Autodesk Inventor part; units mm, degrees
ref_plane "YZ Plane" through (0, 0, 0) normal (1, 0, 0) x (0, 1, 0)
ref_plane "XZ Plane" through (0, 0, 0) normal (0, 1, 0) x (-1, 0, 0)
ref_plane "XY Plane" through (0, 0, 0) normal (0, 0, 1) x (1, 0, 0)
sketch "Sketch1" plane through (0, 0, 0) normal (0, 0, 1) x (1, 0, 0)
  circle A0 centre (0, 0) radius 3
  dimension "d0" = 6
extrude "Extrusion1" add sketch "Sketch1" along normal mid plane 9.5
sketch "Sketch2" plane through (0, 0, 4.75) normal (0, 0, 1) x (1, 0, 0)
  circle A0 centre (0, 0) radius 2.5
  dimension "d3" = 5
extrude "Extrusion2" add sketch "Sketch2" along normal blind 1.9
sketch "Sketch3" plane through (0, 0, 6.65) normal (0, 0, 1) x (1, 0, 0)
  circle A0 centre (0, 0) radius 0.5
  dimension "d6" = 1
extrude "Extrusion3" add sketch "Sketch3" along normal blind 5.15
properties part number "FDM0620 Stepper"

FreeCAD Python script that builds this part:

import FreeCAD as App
import Part
import Sketcher

doc = App.newDocument("Part")
params = doc.addObject("Spreadsheet::Sheet", "Params")
for row, (alias, value) in enumerate([
    ("sketch1_diameter", "6 mm"),
    ("pad1_length", "9.5 mm"),
    ("sketch2_diameter", "5 mm"),
    ("pad2_length", "1.9 mm"),
    ("sketch3_diameter", "1 mm"),
    ("pad3_length", "5.15 mm"),
], start=1):
    params.set(f"A{row}", alias)
    params.set(f"B{row}", "=" + value)
    params.setAlias(f"B{row}", alias)

body = doc.addObject("PartDesign::Body", "Body")

# Sketch on XY plane
sketch1 = doc.addObject("Sketcher::SketchObject", "Sketch")
body.addObject(sketch1)
sketch1.AttachmentSupport = (doc.XY_Plane, [""])
sketch1.MapMode = "FlatFace"
sketch1.addGeometry(Part.Circle(App.Vector(0, 0, 0), App.Vector(0, 0, 1), 3), False)
sketch1.addConstraint([
    Sketcher.Constraint("Coincident", 0, 3, -1, 1),
    Sketcher.Constraint("Diameter", 0, 6.0),
])
sketch1.setExpression("Constraints[1]", "Params.sketch1_diameter")
pad1 = doc.addObject("PartDesign::Pad", "Pad")
body.addObject(pad1)
pad1.Profile = sketch1
pad1.setExpression("Length", "Params.pad1_length")
pad1.Midplane = True

# Sketch on XY plane
sketch2 = doc.addObject("Sketcher::SketchObject", "Sketch001")
body.addObject(sketch2)
sketch2.AttachmentSupport = (doc.XY_Plane, [""])
sketch2.MapMode = "FlatFace"
sketch2.AttachmentOffset = App.Placement(App.Vector(0, 0, 4.75), App.Rotation())
sketch2.addGeometry(Part.Circle(App.Vector(0, 0, 0), App.Vector(0, 0, 1), 2.5), False)
sketch2.addConstraint([
    Sketcher.Constraint("Coincident", 0, 3, -1, 1),
    Sketcher.Constraint("Diameter", 0, 5.0),
])
sketch2.setExpression("Constraints[1]", "Params.sketch2_diameter")
pad2 = doc.addObject("PartDesign::Pad", "Pad001")
body.addObject(pad2)
pad2.Profile = sketch2
pad2.setExpression("Length", "Params.pad2_length")

# Sketch on XY plane
sketch3 = doc.addObject("Sketcher::SketchObject", "Sketch002")
body.addObject(sketch3)
sketch3.AttachmentSupport = (doc.XY_Plane, [""])
sketch3.MapMode = "FlatFace"
sketch3.AttachmentOffset = App.Placement(App.Vector(0, 0, 6.65), App.Rotation())
sketch3.addGeometry(Part.Circle(App.Vector(0, 0, 0), App.Vector(0, 0, 1), 0.5), False)
sketch3.addConstraint([
    Sketcher.Constraint("Coincident", 0, 3, -1, 1),
    Sketcher.Constraint("Diameter", 0, 1.0),
])
sketch3.setExpression("Constraints[1]", "Params.sketch3_diameter")
pad3 = doc.addObject("PartDesign::Pad", "Pad002")
body.addObject(pad3)
pad3.Profile = sketch3
pad3.setExpression("Length", "Params.pad3_length")

doc.recompute()
